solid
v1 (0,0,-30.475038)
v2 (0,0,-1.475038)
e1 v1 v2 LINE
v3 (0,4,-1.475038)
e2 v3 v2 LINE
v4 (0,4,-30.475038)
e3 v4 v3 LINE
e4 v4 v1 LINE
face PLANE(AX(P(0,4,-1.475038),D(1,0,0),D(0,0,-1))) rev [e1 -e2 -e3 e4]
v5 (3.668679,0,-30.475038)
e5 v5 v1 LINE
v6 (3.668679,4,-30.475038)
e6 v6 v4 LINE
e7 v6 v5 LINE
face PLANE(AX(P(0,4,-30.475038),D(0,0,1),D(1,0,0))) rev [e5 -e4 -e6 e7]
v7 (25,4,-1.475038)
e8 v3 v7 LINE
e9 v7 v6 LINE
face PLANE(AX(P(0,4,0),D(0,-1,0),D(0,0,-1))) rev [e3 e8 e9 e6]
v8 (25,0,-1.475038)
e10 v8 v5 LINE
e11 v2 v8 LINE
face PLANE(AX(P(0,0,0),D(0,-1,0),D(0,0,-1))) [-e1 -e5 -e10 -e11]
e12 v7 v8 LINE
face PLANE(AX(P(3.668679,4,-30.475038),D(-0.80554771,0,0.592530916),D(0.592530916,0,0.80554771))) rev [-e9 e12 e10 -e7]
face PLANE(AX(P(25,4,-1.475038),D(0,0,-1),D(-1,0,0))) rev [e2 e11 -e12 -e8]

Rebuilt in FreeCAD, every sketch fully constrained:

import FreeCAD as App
import Part
import Sketcher
from FreeCAD import Vector


def add_polygon(sketch, points):
    """Adds a closed chain of lines whose ends are joined by coincident constraints."""
    first, n = sketch.GeometryCount, len(points)
    for a, b in zip(points, points[1:] + points[:1]):
        sketch.addGeometry(Part.LineSegment(App.Vector(*a, 0), App.Vector(*b, 0)), False)
    for i in range(n):
        sketch.addConstraint(Sketcher.Constraint("Coincident", first + i, 2, first + (i + 1) % n, 1))

doc = App.newDocument("Part")
body = doc.addObject("PartDesign::Body", "Body")

# Sketch on XZ plane
sketch1 = body.newObject("Sketcher::SketchObject", "Sketch")
sketch1.AttachmentSupport = (doc.getObject("XZ_Plane"), [""])
sketch1.MapMode = "FlatFace"
add_polygon(sketch1, [(0, -30.5), (0, -1.5), (25, -1.5), (3.7, -30.5)])  # lines 0-3
sketch1.addConstraint([
    Sketcher.Constraint("Vertical", 0),
    Sketcher.Constraint("Horizontal", 1),
    Sketcher.Constraint("Horizontal", 3),
    Sketcher.Constraint("PointOnObject", 0, 2, -2),
    Sketcher.Constraint("DistanceX", 1, 1, 1, 2, 25.0),
    Sketcher.Constraint("DistanceY", 0, 1, 0, 2, 29.0),
    Sketcher.Constraint("DistanceX", 3, 2, 3, 1, 3.668679),
    Sketcher.Constraint("DistanceY", 0, 2, -1, 1, 1.475038),
])
pad1 = body.newObject("PartDesign::Pad", "Pad")
pad1.Profile = sketch1
pad1.Length = 4
pad1.Reversed = True

doc.recompute()
